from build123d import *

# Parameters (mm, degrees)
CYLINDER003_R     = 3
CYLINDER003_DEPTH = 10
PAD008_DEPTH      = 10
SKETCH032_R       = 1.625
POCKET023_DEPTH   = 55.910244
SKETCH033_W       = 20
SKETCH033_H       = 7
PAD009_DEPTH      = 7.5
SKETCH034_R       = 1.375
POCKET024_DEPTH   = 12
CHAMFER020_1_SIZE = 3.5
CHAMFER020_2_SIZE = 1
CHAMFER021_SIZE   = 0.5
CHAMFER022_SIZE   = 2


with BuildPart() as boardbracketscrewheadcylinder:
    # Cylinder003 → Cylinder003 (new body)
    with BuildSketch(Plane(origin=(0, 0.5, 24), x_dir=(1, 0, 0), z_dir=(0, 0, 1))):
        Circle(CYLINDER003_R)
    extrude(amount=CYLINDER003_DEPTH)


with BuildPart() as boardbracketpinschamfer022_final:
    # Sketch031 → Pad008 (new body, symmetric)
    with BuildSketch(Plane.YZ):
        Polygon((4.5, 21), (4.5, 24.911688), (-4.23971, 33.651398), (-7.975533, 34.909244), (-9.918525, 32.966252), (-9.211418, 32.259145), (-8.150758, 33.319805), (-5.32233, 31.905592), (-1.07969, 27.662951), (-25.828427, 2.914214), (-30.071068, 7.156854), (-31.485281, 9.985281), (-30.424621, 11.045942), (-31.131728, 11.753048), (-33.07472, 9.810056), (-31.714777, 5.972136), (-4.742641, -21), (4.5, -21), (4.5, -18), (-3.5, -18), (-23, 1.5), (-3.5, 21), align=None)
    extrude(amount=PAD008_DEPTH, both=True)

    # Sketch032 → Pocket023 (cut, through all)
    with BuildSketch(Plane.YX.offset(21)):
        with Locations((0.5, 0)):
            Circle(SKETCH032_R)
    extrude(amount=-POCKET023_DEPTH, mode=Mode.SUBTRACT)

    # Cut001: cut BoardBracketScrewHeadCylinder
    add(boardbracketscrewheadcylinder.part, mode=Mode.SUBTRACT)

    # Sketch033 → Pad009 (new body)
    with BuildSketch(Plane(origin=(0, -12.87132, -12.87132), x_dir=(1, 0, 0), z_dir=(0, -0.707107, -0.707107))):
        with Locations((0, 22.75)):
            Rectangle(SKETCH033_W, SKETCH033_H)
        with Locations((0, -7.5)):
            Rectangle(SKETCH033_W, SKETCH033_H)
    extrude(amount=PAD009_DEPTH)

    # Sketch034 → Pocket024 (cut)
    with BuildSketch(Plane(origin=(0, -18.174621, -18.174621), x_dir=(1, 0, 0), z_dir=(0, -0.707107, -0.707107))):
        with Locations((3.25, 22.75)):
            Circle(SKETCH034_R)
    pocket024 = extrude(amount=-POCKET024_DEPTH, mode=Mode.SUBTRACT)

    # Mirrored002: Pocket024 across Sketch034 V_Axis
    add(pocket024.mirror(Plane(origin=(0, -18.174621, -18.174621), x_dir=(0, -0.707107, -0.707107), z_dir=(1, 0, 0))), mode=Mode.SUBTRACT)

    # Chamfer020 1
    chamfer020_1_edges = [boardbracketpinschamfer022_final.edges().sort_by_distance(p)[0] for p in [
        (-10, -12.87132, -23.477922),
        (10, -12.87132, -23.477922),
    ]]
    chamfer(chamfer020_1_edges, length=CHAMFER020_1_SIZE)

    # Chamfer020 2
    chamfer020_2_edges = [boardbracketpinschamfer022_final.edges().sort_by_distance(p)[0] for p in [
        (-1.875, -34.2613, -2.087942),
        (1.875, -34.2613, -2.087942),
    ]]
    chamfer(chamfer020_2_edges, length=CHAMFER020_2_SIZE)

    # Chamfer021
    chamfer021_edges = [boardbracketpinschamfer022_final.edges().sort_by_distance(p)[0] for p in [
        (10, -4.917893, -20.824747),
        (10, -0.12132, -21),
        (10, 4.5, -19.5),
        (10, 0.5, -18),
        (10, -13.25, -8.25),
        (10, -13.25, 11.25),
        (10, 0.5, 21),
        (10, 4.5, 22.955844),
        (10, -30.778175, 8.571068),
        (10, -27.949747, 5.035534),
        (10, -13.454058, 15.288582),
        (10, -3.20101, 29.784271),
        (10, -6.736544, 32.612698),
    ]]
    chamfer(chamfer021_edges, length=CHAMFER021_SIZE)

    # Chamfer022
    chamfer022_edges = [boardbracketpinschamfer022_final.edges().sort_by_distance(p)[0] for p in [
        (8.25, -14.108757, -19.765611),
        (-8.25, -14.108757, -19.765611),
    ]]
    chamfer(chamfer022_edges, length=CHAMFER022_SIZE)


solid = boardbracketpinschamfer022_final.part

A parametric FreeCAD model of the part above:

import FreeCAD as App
import Part
import Sketcher

V = App.Vector
Q = App.Units.Quantity


def edges_at(feature, points):
    """Names of the edges that pass closest to the given points."""
    edges = feature.Shape.Edges
    near = lambda p: min(range(len(edges)), key=lambda i: edges[i].distToShape(Part.Vertex(*p))[0])
    return sorted({f"Edge{near(p) + 1}" for p in points})


def add_polygon(sketch, points):
    """Adds a closed chain of lines whose ends are joined by coincident constraints."""
    first, n = sketch.GeometryCount, len(points)
    for a, b in zip(points, points[1:] + points[:1]):
        sketch.addGeometry(Part.LineSegment(App.Vector(*a, 0), App.Vector(*b, 0)), False)
    for i in range(n):
        sketch.addConstraint(Sketcher.Constraint("Coincident", first + i, 2, first + (i + 1) % n, 1))

doc = App.newDocument("Part")
params = doc.addObject("Spreadsheet::Sheet", "Params")
for row, (alias, value) in enumerate([
    ("sketch1_diameter", "6 mm"),
    ("pad1_length", "10 mm"),
    ("sketch2_width", "8 mm"),
    ("sketch2_height", "3 mm"),
    ("sketch2_length", "1 mm"),
    ("sketch2_length2", "6 mm"),
    ("sketch2_length3", "35 mm"),
    ("pad2_length", "20 mm"),
    ("sketch3_diameter", "3.25 mm"),
    ("sketch4_width", "20 mm"),
    ("sketch4_height", "7 mm"),
    ("pad3_length", "7.5 mm"),
    ("sketch5_diameter", "2.75 mm"),
    ("pocket2_length", "12 mm"),
    ("chamfer_size", "3.5 mm"),
    ("chamfer2_size", "1 mm"),
    ("chamfer3_size", "0.5 mm"),
    ("chamfer4_size", "2 mm"),
], start=1):
    params.set(f"A{row}", alias)
    params.set(f"B{row}", "=" + value)
    params.setAlias(f"B{row}", alias)

body = doc.addObject("PartDesign::Body", "Body")

# Sketch on XY plane
sketch1 = body.newObject("Sketcher::SketchObject", "Sketch")
sketch1.AttachmentSupport = (doc.getObject("XY_Plane"), [""])
sketch1.MapMode = "FlatFace"
sketch1.AttachmentOffset = App.Placement(V(0, 0, 24), App.Rotation())
sketch1.addGeometry(Part.Circle(V(0, 0.5, 0), V(0, 0, 1), 3), False)
sketch1.addConstraint([
    Sketcher.Constraint("PointOnObject", 0, 3, -2),
    Sketcher.Constraint("Diameter", 0, Q("6 mm")),
    Sketcher.Constraint("DistanceY", -1, 1, 0, 3, Q("0.5 mm")),
])
sketch1.setExpression("Constraints[1]", "Params.sketch1_diameter")
pad1 = body.newObject("PartDesign::Pad", "Pad")
pad1.Profile = sketch1
pad1.setExpression("Length", "Params.pad1_length")
body2 = doc.addObject("PartDesign::Body", "Body001")

# Sketch on YZ plane
sketch2 = body2.newObject("Sketcher::SketchObject", "Sketch001")
sketch2.AttachmentSupport = (doc.getObject("YZ_Plane001"), [""])
sketch2.MapMode = "FlatFace"
add_polygon(sketch2, [(4.5, 21), (4.5, 24.9), (-4.2, 33.7), (-8, 34.9), (-9.9, 33), (-9.2, 32.3), (-8.2, 33.3), (-5.3, 31.9), (-1.1, 27.7), (-25.8, 2.9), (-30.1, 7.2), (-31.5, 10), (-30.4, 11), (-31.1, 11.8), (-33.1, 9.8), (-31.7, 6), (-4.7, -21), (4.5, -21), (4.5, -18), (-3.5, -18), (-23, 1.5), (-3.5, 21)])  # lines 0-21
sketch2.addConstraint([
    Sketcher.Constraint("Vertical", 0),
    Sketcher.Constraint("Horizontal", 16),
    Sketcher.Constraint("Vertical", 17),
    Sketcher.Constraint("Horizontal", 18),
    Sketcher.Constraint("Horizontal", 21),
    Sketcher.Constraint("Symmetric", 16, 2, 21, 2, -1),
    Sketcher.Constraint("Perpendicular", 1, 3),
    Sketcher.Constraint("Perpendicular", 3, 4),
    Sketcher.Constraint("Perpendicular", 4, 5),
    Sketcher.Constraint("Perpendicular", 5, 7),
    Sketcher.Constraint("Perpendicular", 7, 8),
    Sketcher.Constraint("Perpendicular", 8, 9),
    Sketcher.Constraint("Perpendicular", 9, 11),
    Sketcher.Constraint("Perpendicular", 11, 12),
    Sketcher.Constraint("Perpendicular", 12, 13),
    Sketcher.Constraint("Perpendicular", 13, 15),
    Sketcher.Constraint("Parallel", 15, 19),
    Sketcher.Constraint("Perpendicular", 19, 20),
    Sketcher.Constraint("Vertical", 18, 2, 20, 2),
    Sketcher.Constraint("Equal", 7, 9),
    Sketcher.Constraint("Equal", 6, 10),
    Sketcher.Constraint("Equal", 5, 11),
    Sketcher.Constraint("Equal", 4, 12),
    Sketcher.Constraint("Equal", 3, 13),
    Sketcher.Constraint("Equal", 19, 20),
    Sketcher.Constraint("DistanceX", 18, 2, 18, 1, Q("8 mm")),
    Sketcher.Constraint("DistanceY", 17, 1, 17, 2, Q("3 mm")),
    Sketcher.Constraint("Distance", 4, Q("1 mm")),
    Sketcher.Constraint("Distance", 7, Q("6 mm")),
    Sketcher.Constraint("Distance", 8, Q("35 mm")),
    Sketcher.Constraint("DistanceY", 15, 2, -1, 1, Q("21 mm")),
    Sketcher.Constraint("DistanceX", 19, 2, -1, 1, Q("23 mm")),
    Sketcher.Constraint("Distance", 5, Q("1.5 mm")),
    Sketcher.Constraint("DistanceX", 16, 1, 16, 2, Q("9.242641 mm")),
    Sketcher.Constraint("DistanceY", 0, 1, 0, 2, Q("3.911688 mm")),
    Sketcher.Constraint("DistanceY", 4, 2, 2, 2, Q("2.650099 mm")),
    Sketcher.Constraint("DistanceX", 12, 2, 8, 2, Q("5.303301 mm")),
    Sketcher.Constraint("DistanceY", 9, 2, 13, 2, Q("2.653202 mm")),
    Sketcher.Constraint("Distance", 14, Q("4.071741 mm")),
    Sketcher.Constraint("Distance", 15, Q("38.144361 mm")),
    Sketcher.Constraint("DistanceX", 1, 2, -1, 1, Q("4.23971 mm")),
    Sketcher.Constraint("DistanceY", -1, 1, 3, 2, Q("32.966252 mm")),
    Sketcher.Constraint("DistanceX", 6, 2, -1, 1, Q("5.32233 mm")),
])
sketch2.setExpression("Constraints[47]", "Params.sketch2_width")
sketch2.setExpression("Constraints[48]", "Params.sketch2_height")
sketch2.setExpression("Constraints[49]", "Params.sketch2_length")
sketch2.setExpression("Constraints[50]", "Params.sketch2_length2")
sketch2.setExpression("Constraints[51]", "Params.sketch2_length3")
pad2 = body2.newObject("PartDesign::Pad", "Pad001")
pad2.Profile = sketch2
pad2.setExpression("Length", "Params.pad2_length")
pad2.Midplane = True

# Sketch on XY plane
sketch3 = body2.newObject("Sketcher::SketchObject", "Sketch002")
sketch3.AttachmentSupport = (doc.getObject("XY_Plane001"), [""])
sketch3.MapMode = "FlatFace"
sketch3.AttachmentOffset = App.Placement(V(0, 0, -21), App.Rotation())
sketch3.addGeometry(Part.Circle(V(0, 0.5, 0), V(0, 0, 1), 1.6), False)
sketch3.addConstraint([
    Sketcher.Constraint("PointOnObject", 0, 3, -2),
    Sketcher.Constraint("Diameter", 0, Q("3.25 mm")),
    Sketcher.Constraint("DistanceY", -1, 1, 0, 3, Q("0.5 mm")),
])
sketch3.setExpression("Constraints[1]", "Params.sketch3_diameter")
pocket1 = body2.newObject("PartDesign::Pocket", "Pocket")
pocket1.Profile = sketch3
pocket1.Type = "ThroughAll"
pocket1.Reversed = True
doc.recompute()

boolean = body2.newObject("PartDesign::Boolean", "Boolean")
boolean.Type = "Cut"
boolean.addObjects([body])

# Sketch on an angled plane
sketch4 = body2.newObject("Sketcher::SketchObject", "Sketch003")
sketch4.Placement = App.Placement(V(0, -12.87132, -12.87132), App.Rotation(V(1, 0, 0), V(0, -0.707106781, 0.707106781), V(0, -0.707106781, -0.707106781), "ZXY"))
add_polygon(sketch4, [(-10, 26), (-10, 19), (10, 19), (10, 26)])  # lines 0-3
add_polygon(sketch4, [(-10, -4), (-10, -11), (10, -11), (10, -4)])  # lines 4-7
sketch4.addConstraint([
    Sketcher.Constraint("Vertical", 0),
    Sketcher.Constraint("Horizontal", 1),
    Sketcher.Constraint("Vertical", 2),
    Sketcher.Constraint("Horizontal", 3),
    Sketcher.Constraint("Vertical", 4),
    Sketcher.Constraint("Horizontal", 5),
    Sketcher.Constraint("Vertical", 6),
    Sketcher.Constraint("Horizontal", 7),
    Sketcher.Constraint("Vertical", 3, 2, 4, 2),
    Sketcher.Constraint("Vertical", 2, 2, 5, 2),
    Sketcher.Constraint("Equal", 2, 4),
    Sketcher.Constraint("DistanceX", 1, 1, 1, 2, Q("20 mm")),
    Sketcher.Constraint("DistanceY", 0, 2, 0, 1, Q("7 mm")),
    Sketcher.Constraint("DistanceX", 0, 2, -1, 1, Q("10 mm")),
    Sketcher.Constraint("DistanceY", 4, 2, -1, 1, Q("11 mm")),
    Sketcher.Constraint("DistanceY", -1, 1, 0, 2, Q("19.25 mm")),
])
sketch4.setExpression("Constraints[19]", "Params.sketch4_width")
sketch4.setExpression("Constraints[20]", "Params.sketch4_height")
pad3 = body2.newObject("PartDesign::Pad", "Pad002")
pad3.Profile = sketch4
pad3.setExpression("Length", "Params.pad3_length")

# Sketch on an angled plane
sketch5 = body2.newObject("Sketcher::SketchObject", "Sketch004")
sketch5.Placement = App.Placement(V(0, -18.174621, -18.174621), App.Rotation(V(1, 0, 0), V(0, -0.707106781, 0.707106781), V(0, -0.707106781, -0.707106781), "ZXY"))
sketch5.addGeometry(Part.Circle(V(3.2, 22.7, 0), V(0, 0, 1), 1.4), False)
sketch5.addConstraint([
    Sketcher.Constraint("Diameter", 0, Q("2.75 mm")),
    Sketcher.Constraint("DistanceX", -1, 1, 0, 3, Q("3.25 mm")),
    Sketcher.Constraint("DistanceY", -1, 1, 0, 3, Q("22.75 mm")),
])
sketch5.setExpression("Constraints[0]", "Params.sketch5_diameter")
pocket2 = body2.newObject("PartDesign::Pocket", "Pocket001")
pocket2.Profile = sketch5
pocket2.setExpression("Length", "Params.pocket2_length")
doc.recompute()

mirrored = body2.newObject("PartDesign::Mirrored", "Mirrored")
mirrored.Originals = [pocket2]
mirrored.MirrorPlane = (doc.getObject("YZ_Plane001"), [""])
body2.Tip = mirrored
doc.recompute()

chamfer = body2.newObject("PartDesign::Chamfer", "Chamfer")
chamfer.Base = (mirrored, edges_at(mirrored, [(-10, -12.871, -23.478), (10, -12.871, -23.478)]))
chamfer.setExpression("Size", "Params.chamfer_size")
doc.recompute()

chamfer2 = body2.newObject("PartDesign::Chamfer", "Chamfer001")
chamfer2.Base = (chamfer, edges_at(chamfer, [(-1.875, -34.261, -2.088), (1.875, -34.261, -2.088)]))
chamfer2.setExpression("Size", "Params.chamfer2_size")
doc.recompute()

chamfer3 = body2.newObject("PartDesign::Chamfer", "Chamfer002")
chamfer3.Base = (chamfer2, edges_at(chamfer2, [
    (10, -4.918, -20.825),
    (10, -0.121, -21),
    (10, 4.5, -19.5),
    (10, 0.5, -18),
    (10, -13.25, -8.25),
    (10, -13.25, 11.25),
    (10, 0.5, 21),
    (10, 4.5, 22.956),
    (10, -30.778, 8.571),
    (10, -27.95, 5.036),
    (10, -13.454, 15.289),
    (10, -3.201, 29.784),
    (10, -6.737, 32.613),
]))
chamfer3.setExpression("Size", "Params.chamfer3_size")
doc.recompute()

chamfer4 = body2.newObject("PartDesign::Chamfer", "Chamfer003")
chamfer4.Base = (chamfer3, edges_at(chamfer3, [(8.25, -14.109, -19.766), (-8.25, -14.109, -19.766)]))
chamfer4.setExpression("Size", "Params.chamfer4_size")

doc.recompute()
